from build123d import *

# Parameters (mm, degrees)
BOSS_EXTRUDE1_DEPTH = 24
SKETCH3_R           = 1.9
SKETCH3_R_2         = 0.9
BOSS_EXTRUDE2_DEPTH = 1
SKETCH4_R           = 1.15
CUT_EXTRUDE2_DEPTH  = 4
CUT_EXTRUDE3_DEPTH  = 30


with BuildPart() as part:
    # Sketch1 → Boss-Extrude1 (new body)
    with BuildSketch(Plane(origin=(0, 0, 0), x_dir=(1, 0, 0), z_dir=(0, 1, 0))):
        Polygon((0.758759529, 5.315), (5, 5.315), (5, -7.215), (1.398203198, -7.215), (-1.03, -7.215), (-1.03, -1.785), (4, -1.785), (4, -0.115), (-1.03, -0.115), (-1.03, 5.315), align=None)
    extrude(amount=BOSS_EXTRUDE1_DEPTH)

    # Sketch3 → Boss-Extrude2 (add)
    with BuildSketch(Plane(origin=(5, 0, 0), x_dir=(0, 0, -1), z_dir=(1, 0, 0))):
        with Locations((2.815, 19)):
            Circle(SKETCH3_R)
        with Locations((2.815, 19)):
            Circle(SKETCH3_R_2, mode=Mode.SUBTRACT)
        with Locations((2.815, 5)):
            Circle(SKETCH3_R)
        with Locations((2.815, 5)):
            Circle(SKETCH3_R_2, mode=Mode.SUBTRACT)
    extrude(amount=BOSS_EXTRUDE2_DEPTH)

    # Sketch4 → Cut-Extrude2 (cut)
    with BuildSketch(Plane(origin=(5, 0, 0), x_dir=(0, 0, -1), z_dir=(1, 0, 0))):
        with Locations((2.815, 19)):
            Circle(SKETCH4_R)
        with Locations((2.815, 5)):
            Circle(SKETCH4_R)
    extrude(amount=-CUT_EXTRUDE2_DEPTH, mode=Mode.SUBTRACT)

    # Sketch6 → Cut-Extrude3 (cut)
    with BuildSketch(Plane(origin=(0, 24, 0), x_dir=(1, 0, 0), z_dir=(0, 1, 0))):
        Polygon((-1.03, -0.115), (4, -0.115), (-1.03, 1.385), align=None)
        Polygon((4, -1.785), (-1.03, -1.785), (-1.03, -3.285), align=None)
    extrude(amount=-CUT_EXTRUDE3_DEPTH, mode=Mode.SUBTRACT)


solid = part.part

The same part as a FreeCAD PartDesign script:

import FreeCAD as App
import Part
import Sketcher

V = App.Vector

doc = App.newDocument("Part")
body = doc.addObject("PartDesign::Body", "Body")

# Sketch on XZ plane
sketch1 = body.newObject("Sketcher::SketchObject", "Sketch")
sketch1.AttachmentSupport = (doc.getObject("XZ_Plane"), [""])
sketch1.MapMode = "FlatFace"
sketch1.addGeometry([
    Part.LineSegment(V(5, -5.3, 0), V(-1, -5.3, 0)),  # 0
    Part.LineSegment(V(-1, -5.3, 0), V(-1, 0.1, 0)),  # 1
    Part.LineSegment(V(-1, 0.1, 0), V(4, 0.1, 0)),  # 2
    Part.LineSegment(V(4, 0.1, 0), V(4, 1.8, 0)),  # 3
    Part.LineSegment(V(4, 1.8, 0), V(-1, 1.8, 0)),  # 4
    Part.LineSegment(V(-1, 1.8, 0), V(-1, 7.2, 0)),  # 5
    Part.LineSegment(V(-1, 7.2, 0), V(5, 7.2, 0)),  # 6
    Part.LineSegment(V(5, 7.2, 0), V(5, -5.3, 0)),  # 7
], False)
sketch1.addConstraint([
    Sketcher.Constraint("Coincident", 0, 2, 1, 1),
    Sketcher.Constraint("Coincident", 1, 2, 2, 1),
    Sketcher.Constraint("Coincident", 2, 2, 3, 1),
    Sketcher.Constraint("Coincident", 3, 2, 4, 1),
    Sketcher.Constraint("Coincident", 4, 2, 5, 1),
    Sketcher.Constraint("Coincident", 5, 2, 6, 1),
    Sketcher.Constraint("Coincident", 6, 2, 7, 1),
    Sketcher.Constraint("Coincident", 7, 2, 0, 1),
    Sketcher.Constraint("Horizontal", 0),
    Sketcher.Constraint("Vertical", 1),
    Sketcher.Constraint("Horizontal", 2),
    Sketcher.Constraint("Vertical", 3),
    Sketcher.Constraint("Horizontal", 4),
    Sketcher.Constraint("Vertical", 5),
    Sketcher.Constraint("Horizontal", 6),
    Sketcher.Constraint("Vertical", 7),
    Sketcher.Constraint("Vertical", 1, 2, 4, 2),
    Sketcher.Constraint("Equal", 1, 5),
    Sketcher.Constraint("DistanceX", -1, 1, 2, 2, 4.0),
    Sketcher.Constraint("DistanceX", -1, 1, 6, 2, 5.0),
    Sketcher.Constraint("DistanceX", 0, 2, 0, 1, 6.03),
    Sketcher.Constraint("DistanceY", 1, 1, 1, 2, 5.43),
    Sketcher.Constraint("DistanceY", 3, 1, 3, 2, 1.67),
    Sketcher.Constraint("DistanceY", 0, 2, -1, 1, 5.315),
])
pad1 = body.newObject("PartDesign::Pad", "Pad")
pad1.Profile = sketch1
pad1.Length = 24
pad1.Reversed = True

# Sketch on YZ plane
sketch2 = body.newObject("Sketcher::SketchObject", "Sketch001")
sketch2.AttachmentSupport = (doc.getObject("YZ_Plane"), [""])
sketch2.MapMode = "FlatFace"
sketch2.AttachmentOffset = App.Placement(V(0, 0, 5), App.Rotation())
sketch2.addGeometry([
    Part.Circle(V(19, -2.8, 0), V(0, 0, 1), 1.9),
    Part.Circle(V(19, -2.8, 0), V(0, 0, 1), 0.9),
    Part.Circle(V(5, -2.8, 0), V(0, 0, 1), 1.9),
    Part.Circle(V(5, -2.8, 0), V(0, 0, 1), 0.9),
], False)
sketch2.addConstraint([
    Sketcher.Constraint("Coincident", 1, 3, 0, 3),
    Sketcher.Constraint("Coincident", 3, 3, 2, 3),
    Sketcher.Constraint("Equal", 0, 2),
    Sketcher.Constraint("Equal", 1, 3),
    Sketcher.Constraint("Horizontal", 1, 3, 2, 3),
    Sketcher.Constraint("Diameter", 0, 3.8),
    Sketcher.Constraint("Diameter", 1, 1.8),
    Sketcher.Constraint("DistanceX", -1, 1, 0, 3, 19.0),
    Sketcher.Constraint("DistanceX", -1, 1, 2, 3, 5.0),
    Sketcher.Constraint("DistanceY", 0, 3, -1, 1, 2.815),
])
pad2 = body.newObject("PartDesign::Pad", "Pad001")
pad2.Profile = sketch2
pad2.Length = 1

# Sketch on YZ plane
sketch3 = body.newObject("Sketcher::SketchObject", "Sketch002")
sketch3.AttachmentSupport = (doc.getObject("YZ_Plane"), [""])
sketch3.MapMode = "FlatFace"
sketch3.AttachmentOffset = App.Placement(V(0, 0, 5), App.Rotation())
sketch3.addGeometry([
    Part.Circle(V(19, -2.8, 0), V(0, 0, 1), 1.1),
    Part.Circle(V(5, -2.8, 0), V(0, 0, 1), 1.1),
], False)
sketch3.addConstraint([
    Sketcher.Constraint("Equal", 0, 1),
    Sketcher.Constraint("Horizontal", 0, 3, 1, 3),
    Sketcher.Constraint("Diameter", 0, 2.3),
    Sketcher.Constraint("DistanceX", -1, 1, 0, 3, 19.0),
    Sketcher.Constraint("DistanceX", -1, 1, 1, 3, 5.0),
    Sketcher.Constraint("DistanceY", 0, 3, -1, 1, 2.815),
])
pocket1 = body.newObject("PartDesign::Pocket", "Pocket")
pocket1.Profile = sketch3
pocket1.Length = 4

# Sketch on XZ plane
sketch4 = body.newObject("Sketcher::SketchObject", "Sketch003")
sketch4.AttachmentSupport = (doc.getObject("XZ_Plane"), [""])
sketch4.MapMode = "FlatFace"
sketch4.AttachmentOffset = App.Placement(V(0, 0, -24), App.Rotation())
sketch4.addGeometry([
    Part.LineSegment(V(-1, 0.1, 0), V(4, 0.1, 0)),  # 0
    Part.LineSegment(V(4, 0.1, 0), V(-1, -1.4, 0)),  # 1
    Part.LineSegment(V(-1, -1.4, 0), V(-1, 0.1, 0)),  # 2
    Part.LineSegment(V(4, 1.8, 0), V(-1, 1.8, 0)),  # 3
    Part.LineSegment(V(-1, 1.8, 0), V(-1, 3.3, 0)),  # 4
    Part.LineSegment(V(-1, 3.3, 0), V(4, 1.8, 0)),  # 5
], False)
sketch4.addConstraint([
    Sketcher.Constraint("Coincident", 0, 2, 1, 1),
    Sketcher.Constraint("Coincident", 1, 2, 2, 1),
    Sketcher.Constraint("Coincident", 2, 2, 0, 1),
    Sketcher.Constraint("Coincident", 3, 2, 4, 1),
    Sketcher.Constraint("Coincident", 4, 2, 5, 1),
    Sketcher.Constraint("Coincident", 5, 2, 3, 1),
    Sketcher.Constraint("Horizontal", 0),
    Sketcher.Constraint("Vertical", 2),
    Sketcher.Constraint("Horizontal", 3),
    Sketcher.Constraint("Vertical", 4),
    Sketcher.Constraint("Vertical", 2, 2, 3, 2),
    Sketcher.Constraint("Vertical", 0, 2, 5, 2),
    Sketcher.Constraint("Equal", 2, 4),
    Sketcher.Constraint("DistanceY", 2, 1, 2, 2, 1.5),
    Sketcher.Constraint("DistanceX", -1, 1, 0, 2, 4.0),
    Sketcher.Constraint("DistanceX", 0, 1, 0, 2, 5.03),
    Sketcher.Constraint("DistanceY", 2, 2, 3, 2, 1.67),
    Sketcher.Constraint("DistanceY", -1, 1, 0, 2, 0.115),
])
pocket2 = body.newObject("PartDesign::Pocket", "Pocket001")
pocket2.Profile = sketch4
pocket2.Length = 30
pocket2.Reversed = True

doc.recompute()
